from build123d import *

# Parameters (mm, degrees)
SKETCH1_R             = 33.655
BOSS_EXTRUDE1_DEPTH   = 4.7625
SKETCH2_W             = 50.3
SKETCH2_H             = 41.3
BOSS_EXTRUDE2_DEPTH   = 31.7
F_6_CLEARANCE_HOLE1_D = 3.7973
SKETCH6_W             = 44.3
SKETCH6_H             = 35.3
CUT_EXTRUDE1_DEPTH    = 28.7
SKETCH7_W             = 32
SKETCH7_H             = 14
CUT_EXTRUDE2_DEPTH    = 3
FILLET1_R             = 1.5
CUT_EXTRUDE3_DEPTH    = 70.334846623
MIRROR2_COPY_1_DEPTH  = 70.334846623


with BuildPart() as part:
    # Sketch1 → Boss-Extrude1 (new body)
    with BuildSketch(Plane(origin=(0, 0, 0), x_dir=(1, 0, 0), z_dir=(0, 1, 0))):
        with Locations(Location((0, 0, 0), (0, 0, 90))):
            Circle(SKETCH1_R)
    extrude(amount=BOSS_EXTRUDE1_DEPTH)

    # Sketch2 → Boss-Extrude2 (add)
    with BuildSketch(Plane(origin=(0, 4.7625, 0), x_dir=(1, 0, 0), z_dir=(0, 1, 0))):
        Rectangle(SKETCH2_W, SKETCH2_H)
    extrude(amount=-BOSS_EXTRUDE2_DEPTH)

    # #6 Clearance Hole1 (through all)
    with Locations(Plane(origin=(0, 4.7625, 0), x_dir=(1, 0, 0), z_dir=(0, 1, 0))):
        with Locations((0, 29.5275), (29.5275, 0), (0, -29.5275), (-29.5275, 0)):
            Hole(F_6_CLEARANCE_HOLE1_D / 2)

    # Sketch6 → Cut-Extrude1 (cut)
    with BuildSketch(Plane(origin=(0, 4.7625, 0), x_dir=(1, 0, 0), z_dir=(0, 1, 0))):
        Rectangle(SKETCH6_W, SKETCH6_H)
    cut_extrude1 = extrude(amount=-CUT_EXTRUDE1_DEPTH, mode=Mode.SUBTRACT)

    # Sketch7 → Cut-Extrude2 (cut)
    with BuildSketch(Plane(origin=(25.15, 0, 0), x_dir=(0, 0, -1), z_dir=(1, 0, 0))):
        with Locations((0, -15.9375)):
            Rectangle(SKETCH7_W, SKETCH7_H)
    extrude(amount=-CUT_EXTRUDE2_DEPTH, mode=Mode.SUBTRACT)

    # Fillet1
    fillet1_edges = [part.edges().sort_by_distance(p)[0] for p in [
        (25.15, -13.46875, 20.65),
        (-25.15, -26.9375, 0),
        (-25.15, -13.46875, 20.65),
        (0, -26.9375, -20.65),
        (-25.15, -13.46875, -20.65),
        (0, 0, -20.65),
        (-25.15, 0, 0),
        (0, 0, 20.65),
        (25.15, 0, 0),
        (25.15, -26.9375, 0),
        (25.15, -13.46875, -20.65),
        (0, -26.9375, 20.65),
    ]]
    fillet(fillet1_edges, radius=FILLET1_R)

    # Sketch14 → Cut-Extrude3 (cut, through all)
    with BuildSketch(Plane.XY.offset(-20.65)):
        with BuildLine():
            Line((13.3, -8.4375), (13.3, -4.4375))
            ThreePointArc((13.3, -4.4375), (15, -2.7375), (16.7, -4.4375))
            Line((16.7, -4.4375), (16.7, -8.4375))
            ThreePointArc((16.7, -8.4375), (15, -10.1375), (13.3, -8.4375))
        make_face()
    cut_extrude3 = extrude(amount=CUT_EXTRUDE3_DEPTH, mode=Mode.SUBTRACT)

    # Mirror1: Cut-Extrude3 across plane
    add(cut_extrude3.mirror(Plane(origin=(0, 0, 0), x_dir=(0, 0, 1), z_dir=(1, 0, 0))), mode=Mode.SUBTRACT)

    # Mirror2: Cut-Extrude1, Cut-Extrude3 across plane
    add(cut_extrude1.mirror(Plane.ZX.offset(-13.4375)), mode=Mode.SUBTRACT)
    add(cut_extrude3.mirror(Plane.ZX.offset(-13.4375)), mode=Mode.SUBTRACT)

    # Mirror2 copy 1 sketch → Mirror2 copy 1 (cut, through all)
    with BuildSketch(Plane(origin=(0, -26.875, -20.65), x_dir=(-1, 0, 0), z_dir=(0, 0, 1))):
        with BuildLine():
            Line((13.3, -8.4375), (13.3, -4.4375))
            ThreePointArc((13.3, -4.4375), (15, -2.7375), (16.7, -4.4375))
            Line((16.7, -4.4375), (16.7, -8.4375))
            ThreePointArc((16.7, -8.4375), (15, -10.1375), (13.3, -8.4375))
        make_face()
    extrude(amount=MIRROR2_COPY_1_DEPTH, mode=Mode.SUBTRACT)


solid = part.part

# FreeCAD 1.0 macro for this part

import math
import FreeCAD as App
import Part
import Sketcher

V = App.Vector


def edges_at(feature, points):
    """Names of the edges that pass closest to the given points."""
    edges = feature.Shape.Edges
    near = lambda p: min(range(len(edges)), key=lambda i: edges[i].distToShape(Part.Vertex(*p))[0])
    return sorted({f"Edge{near(p) + 1}" for p in points})


def add_polygon(sketch, points):
    """Adds a closed chain of lines whose ends are joined by coincident constraints."""
    first, n = sketch.GeometryCount, len(points)
    for a, b in zip(points, points[1:] + points[:1]):
        sketch.addGeometry(Part.LineSegment(App.Vector(*a, 0), App.Vector(*b, 0)), False)
    for i in range(n):
        sketch.addConstraint(Sketcher.Constraint("Coincident", first + i, 2, first + (i + 1) % n, 1))

doc = App.newDocument("Part")
body = doc.addObject("PartDesign::Body", "Body")

sketch1 = body.newObject("Sketcher::SketchObject", "Sketch")
sketch1.AttachmentSupport = (doc.getObject("XZ_Plane"), [""])
sketch1.MapMode = "FlatFace"
sketch1.addGeometry(Part.Circle(V(0, 0, 0), V(0, 0, 1), 34), False)
sketch1.addConstraint(Sketcher.Constraint("Coincident", 0, 3, -1, 1))
sketch1.addConstraint(Sketcher.Constraint("Diameter", 0, 67.31))
pad1 = body.newObject("PartDesign::Pad", "Pad")
pad1.Profile = sketch1
pad1.Length = 4.7625
pad1.Reversed = True

sketch2 = body.newObject("Sketcher::SketchObject", "Sketch001")
sketch2.AttachmentSupport = (doc.getObject("XZ_Plane"), [""])
sketch2.MapMode = "FlatFace"
sketch2.AttachmentOffset = App.Placement(V(0, 0, -4.7625), App.Rotation())
add_polygon(sketch2, [(-25, -21), (-25, 21), (25, 21), (25, -21)])
sketch2.addConstraint(Sketcher.Constraint("Vertical", 0))
sketch2.addConstraint(Sketcher.Constraint("Horizontal", 1))
sketch2.addConstraint(Sketcher.Constraint("Vertical", 2))
sketch2.addConstraint(Sketcher.Constraint("Horizontal", 3))
sketch2.addConstraint(Sketcher.Constraint("Symmetric", 0, 2, 2, 2, -1, 1))
sketch2.addConstraint(Sketcher.Constraint("DistanceX", 1, 1, 1, 2, 50.3))
sketch2.addConstraint(Sketcher.Constraint("DistanceY", 0, 1, 0, 2, 41.3))
pad2 = body.newObject("PartDesign::Pad", "Pad001")
pad2.Profile = sketch2
pad2.Length = 31.7

sketch3 = body.newObject("Sketcher::SketchObject", "Sketch002")
sketch3.AttachmentSupport = (doc.getObject("XZ_Plane"), [""])
sketch3.MapMode = "FlatFace"
sketch3.AttachmentOffset = App.Placement(V(0, 0, -4.7625), App.Rotation())
sketch3.addGeometry(Part.Circle(V(0, -29.5, 0), V(0, 0, 1), 1.9), False)
sketch3.addGeometry(Part.Circle(V(29.5, 0, 0), V(0, 0, 1), 1.9), False)
sketch3.addGeometry(Part.Circle(V(0, 29.5, 0), V(0, 0, 1), 1.9), False)
sketch3.addGeometry(Part.Circle(V(-29.5, 0, 0), V(0, 0, 1), 1.9), False)
sketch3.addConstraint(Sketcher.Constraint("Equal", 0, 1))
sketch3.addConstraint(Sketcher.Constraint("Equal", 1, 2))
sketch3.addConstraint(Sketcher.Constraint("Equal", 2, 3))
sketch3.addConstraint(Sketcher.Constraint("Symmetric", 0, 3, 2, 3, -1, 1))
sketch3.addConstraint(Sketcher.Constraint("Symmetric", 1, 3, 3, 3, -1, 1))
sketch3.addConstraint(Sketcher.Constraint("PointOnObject", 0, 3, -2))
sketch3.addConstraint(Sketcher.Constraint("PointOnObject", 1, 3, -1))
sketch3.addConstraint(Sketcher.Constraint("Diameter", 0, 3.7973))
sketch3.addConstraint(Sketcher.Constraint("DistanceY", 0, 3, 2, 3, 59.055))
sketch3.addConstraint(Sketcher.Constraint("DistanceX", 3, 3, 1, 3, 59.055))
doc.recompute()
hole = body.newObject("PartDesign::Hole", "Hole")
hole.Profile = sketch3
hole.ThreadType = "None"
hole.Diameter = 3.7973
hole.DepthType = "ThroughAll"
hole.Reversed = True

sketch4 = body.newObject("Sketcher::SketchObject", "Sketch003")
sketch4.AttachmentSupport = (doc.getObject("XZ_Plane"), [""])
sketch4.MapMode = "FlatFace"
sketch4.AttachmentOffset = App.Placement(V(0, 0, -4.7625), App.Rotation())
add_polygon(sketch4, [(-22, -18), (-22, 18), (22, 18), (22, -18)])
sketch4.addConstraint(Sketcher.Constraint("Vertical", 0))
sketch4.addConstraint(Sketcher.Constraint("Horizontal", 1))
sketch4.addConstraint(Sketcher.Constraint("Vertical", 2))
sketch4.addConstraint(Sketcher.Constraint("Horizontal", 3))
sketch4.addConstraint(Sketcher.Constraint("Symmetric", 0, 2, 2, 2, -1, 1))
sketch4.addConstraint(Sketcher.Constraint("DistanceX", 1, 1, 1, 2, 44.3))
sketch4.addConstraint(Sketcher.Constraint("DistanceY", 0, 1, 0, 2, 35.3))
pocket1 = body.newObject("PartDesign::Pocket", "Pocket")
pocket1.Profile = sketch4
pocket1.Length = 28.7
pocket1.Reversed = True

sketch5 = body.newObject("Sketcher::SketchObject", "Sketch004")
sketch5.AttachmentSupport = (doc.getObject("YZ_Plane"), [""])
sketch5.MapMode = "FlatFace"
sketch5.AttachmentOffset = App.Placement(V(0, 0, 25.15), App.Rotation())
add_polygon(sketch5, [(-9, 16), (-23, 16), (-23, -16), (-9, -16)])
sketch5.addConstraint(Sketcher.Constraint("Horizontal", 0))
sketch5.addConstraint(Sketcher.Constraint("Vertical", 1))
sketch5.addConstraint(Sketcher.Constraint("Horizontal", 2))
sketch5.addConstraint(Sketcher.Constraint("Vertical", 3))
sketch5.addConstraint(Sketcher.Constraint("DistanceX", 0, 2, 0, 1, 14.0))
sketch5.addConstraint(Sketcher.Constraint("DistanceY", 1, 2, 1, 1, 32.0))
sketch5.addConstraint(Sketcher.Constraint("DistanceY", -1, 1, 0, 2, 16.0))
sketch5.addConstraint(Sketcher.Constraint("DistanceX", 0, 2, -1, 1, 22.9375))
pocket2 = body.newObject("PartDesign::Pocket", "Pocket001")
pocket2.Profile = sketch5
pocket2.Length = 3
doc.recompute()

fillet = body.newObject("PartDesign::Fillet", "Fillet")
fillet.Base = (pocket2, edges_at(pocket2, [
    (25.15, -13.469, 20.65),
    (-25.15, -26.938, 0),
    (-25.15, -13.469, 20.65),
    (0, -26.938, -20.65),
    (-25.15, -13.469, -20.65),
    (0, 0, -20.65),
    (-25.15, 0, 0),
    (0, 0, 20.65),
    (25.15, 0, 0),
    (25.15, -26.938, 0),
    (25.15, -13.469, -20.65),
    (0, -26.938, 20.65),
]))
fillet.Radius = 1.5

sketch6 = body.newObject("Sketcher::SketchObject", "Sketch005")
sketch6.AttachmentSupport = (doc.getObject("XY_Plane"), [""])
sketch6.MapMode = "FlatFace"
sketch6.AttachmentOffset = App.Placement(V(0, 0, -20.65), App.Rotation())
sketch6.addGeometry(Part.LineSegment(V(13.3, -4.4, 0), V(13.3, -8.4, 0)), False)
sketch6.addGeometry(Part.ArcOfCircle(Part.Circle(V(15, -8.4, 0), V(0, 0, 1), 1.7), math.radians(180), math.radians(360)), False)
sketch6.addGeometry(Part.LineSegment(V(16.7, -8.4, 0), V(16.7, -4.4, 0)), False)
sketch6.addGeometry(Part.ArcOfCircle(Part.Circle(V(15, -4.4, 0), V(0, 0, 1), 1.7), math.radians(0), math.radians(180)), False)
sketch6.addConstraint(Sketcher.Constraint("Tangent", 0, 2, 1, 1))
sketch6.addConstraint(Sketcher.Constraint("Tangent", 1, 2, 2, 1))
sketch6.addConstraint(Sketcher.Constraint("Tangent", 2, 2, 3, 1))
sketch6.addConstraint(Sketcher.Constraint("Tangent", 3, 2, 0, 1))
sketch6.addConstraint(Sketcher.Constraint("Vertical", 0))
sketch6.addConstraint(Sketcher.Constraint("Vertical", 2))
sketch6.addConstraint(Sketcher.Constraint("Radius", 1, 1.7))
sketch6.addConstraint(Sketcher.Constraint("DistanceY", 0, 2, 0, 1, 4.0))
sketch6.addConstraint(Sketcher.Constraint("DistanceX", -1, 1, 1, 3, 15.0))
sketch6.addConstraint(Sketcher.Constraint("DistanceY", 1, 3, -1, 1, 8.4375))
pocket3 = body.newObject("PartDesign::Pocket", "Pocket002")
pocket3.Profile = sketch6
pocket3.Type = "ThroughAll"
pocket3.Reversed = True
doc.recompute()

mirrored = body.newObject("PartDesign::Mirrored", "Mirrored")
mirrored.Originals = [pocket3]
mirrored.MirrorPlane = (doc.getObject("YZ_Plane"), [""])
body.Tip = mirrored
doc.recompute()

datumplane = body.newObject("PartDesign::Plane", "DatumPlane")
datumplane.AttachmentSupport = (doc.getObject("XZ_Plane"), [""])
datumplane.MapMode = "FlatFace"
datumplane.AttachmentOffset = App.Placement(V(0, 0, 13.4375), App.Rotation())
mirrored2 = body.newObject("PartDesign::Mirrored", "Mirrored001")
mirrored2.Originals = [pocket1, pocket3]
mirrored2.MirrorPlane = (datumplane, [""])
body.Tip = mirrored2

sketch7 = body.newObject("Sketcher::SketchObject", "Sketch006")
sketch7.AttachmentSupport = (doc.getObject("XY_Plane"), [""])
sketch7.MapMode = "FlatFace"
sketch7.AttachmentOffset = App.Placement(V(0, 0, -20.65), App.Rotation())
sketch7.addGeometry(Part.LineSegment(V(-13.3, -22.4, 0), V(-13.3, -18.4, 0)), False)
sketch7.addGeometry(Part.ArcOfCircle(Part.Circle(V(-15, -18.4, 0), V(0, 0, 1), 1.7), math.radians(0), math.radians(180)), False)
sketch7.addGeometry(Part.LineSegment(V(-16.7, -18.4, 0), V(-16.7, -22.4, 0)), False)
sketch7.addGeometry(Part.ArcOfCircle(Part.Circle(V(-15, -22.4, 0), V(0, 0, 1), 1.7), math.radians(180), math.radians(360)), False)
sketch7.addConstraint(Sketcher.Constraint("Tangent", 0, 2, 1, 1))
sketch7.addConstraint(Sketcher.Constraint("Tangent", 1, 2, 2, 1))
sketch7.addConstraint(Sketcher.Constraint("Tangent", 2, 2, 3, 1))
sketch7.addConstraint(Sketcher.Constraint("Tangent", 3, 2, 0, 1))
sketch7.addConstraint(Sketcher.Constraint("Vertical", 0))
sketch7.addConstraint(Sketcher.Constraint("Vertical", 2))
sketch7.addConstraint(Sketcher.Constraint("Radius", 1, 1.7))
sketch7.addConstraint(Sketcher.Constraint("DistanceY", 0, 1, 0, 2, 4.0))
sketch7.addConstraint(Sketcher.Constraint("DistanceX", 1, 3, -1, 1, 15.0))
sketch7.addConstraint(Sketcher.Constraint("DistanceY", 1, 3, -1, 1, 18.4375))
pocket4 = body.newObject("PartDesign::Pocket", "Pocket003")
pocket4.Profile = sketch7
pocket4.Type = "ThroughAll"
pocket4.Reversed = True

doc.recompute()
